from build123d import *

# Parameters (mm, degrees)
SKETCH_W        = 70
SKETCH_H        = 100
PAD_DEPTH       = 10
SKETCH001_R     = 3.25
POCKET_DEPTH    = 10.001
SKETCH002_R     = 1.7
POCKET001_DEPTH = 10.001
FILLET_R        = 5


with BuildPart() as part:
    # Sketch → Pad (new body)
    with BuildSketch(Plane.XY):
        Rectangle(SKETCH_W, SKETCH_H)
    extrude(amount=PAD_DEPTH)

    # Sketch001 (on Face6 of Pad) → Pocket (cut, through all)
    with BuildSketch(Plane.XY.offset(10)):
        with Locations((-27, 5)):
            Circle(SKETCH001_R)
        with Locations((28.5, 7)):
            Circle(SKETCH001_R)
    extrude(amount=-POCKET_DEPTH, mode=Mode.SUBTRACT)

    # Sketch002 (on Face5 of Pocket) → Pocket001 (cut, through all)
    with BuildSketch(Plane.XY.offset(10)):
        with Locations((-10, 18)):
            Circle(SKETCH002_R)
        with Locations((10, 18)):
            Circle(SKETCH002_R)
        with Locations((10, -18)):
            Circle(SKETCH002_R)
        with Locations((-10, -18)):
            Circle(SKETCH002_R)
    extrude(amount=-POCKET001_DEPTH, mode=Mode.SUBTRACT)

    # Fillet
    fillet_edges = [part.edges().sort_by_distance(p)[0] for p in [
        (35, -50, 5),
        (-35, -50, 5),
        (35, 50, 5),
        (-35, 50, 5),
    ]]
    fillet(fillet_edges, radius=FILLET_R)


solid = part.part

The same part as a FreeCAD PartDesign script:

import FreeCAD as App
import Part
import Sketcher
from FreeCAD import Vector
Q = App.Units.Quantity


def edges_at(feature, points):
    """Names of the edges that pass closest to the given points."""
    edges = feature.Shape.Edges
    near = lambda p: min(range(len(edges)), key=lambda i: edges[i].distToShape(Part.Vertex(*p))[0])
    return sorted({f"Edge{near(p) + 1}" for p in points})

doc = App.newDocument("Part")
body = doc.addObject("PartDesign::Body", "Body")

sketch1 = body.newObject("Sketcher::SketchObject", "Sketch")
sketch1.AttachmentSupport = (doc.getObject("XY_Plane"), [""])
sketch1.MapMode = "FlatFace"
sketch1.addGeometry([
    Part.LineSegment(Vector(-35, 50, 0), Vector(-35, -50, 0)),
    Part.LineSegment(Vector(-35, -50, 0), Vector(35, -50, 0)),
    Part.LineSegment(Vector(35, -50, 0), Vector(35, 50, 0)),
    Part.LineSegment(Vector(35, 50, 0), Vector(-35, 50, 0)),
], False)
sketch1.addConstraint([
    Sketcher.Constraint("Coincident", 0, 2, 1, 1),
    Sketcher.Constraint("Coincident", 1, 2, 2, 1),
    Sketcher.Constraint("Coincident", 2, 2, 3, 1),
    Sketcher.Constraint("Coincident", 3, 2, 0, 1),
    Sketcher.Constraint("Vertical", 0),
    Sketcher.Constraint("Horizontal", 1),
    Sketcher.Constraint("Vertical", 2),
    Sketcher.Constraint("Horizontal", 3),
    Sketcher.Constraint("Symmetric", 0, 2, 2, 2, -1, 1),
    Sketcher.Constraint("DistanceX", 1, 1, 1, 2, Q("70 mm")),
    Sketcher.Constraint("DistanceY", 0, 2, 0, 1, Q("100 mm")),
])
pad1 = body.newObject("PartDesign::Pad", "Pad")
pad1.Profile = sketch1
pad1.Length = 10

sketch2 = body.newObject("Sketcher::SketchObject", "Sketch001")
sketch2.AttachmentSupport = (doc.getObject("XY_Plane"), [""])
sketch2.MapMode = "FlatFace"
sketch2.AttachmentOffset = App.Placement(Vector(0, 0, 10), App.Rotation())
sketch2.addGeometry([
    Part.Circle(Vector(-27, 5, 0), Vector(0, 0, 1), 3.25),
    Part.Circle(Vector(28.5, 7, 0), Vector(0, 0, 1), 3.25),
], False)
sketch2.addConstraint([
    Sketcher.Constraint("Equal", 0, 1),
    Sketcher.Constraint("Diameter", 0, Q("6.5 mm")),
    Sketcher.Constraint("DistanceX", 0, 3, -1, 1, Q("27 mm")),
    Sketcher.Constraint("DistanceY", -1, 1, 0, 3, Q("5 mm")),
    Sketcher.Constraint("DistanceY", -1, 1, 1, 3, Q("7 mm")),
    Sketcher.Constraint("DistanceX", -1, 1, 1, 3, Q("28.5 mm")),
])
pocket1 = body.newObject("PartDesign::Pocket", "Pocket")
pocket1.Profile = sketch2
pocket1.Type = "ThroughAll"

sketch3 = body.newObject("Sketcher::SketchObject", "Sketch002")
sketch3.AttachmentSupport = (doc.getObject("XY_Plane"), [""])
sketch3.MapMode = "FlatFace"
sketch3.AttachmentOffset = App.Placement(Vector(0, 0, 10), App.Rotation())
sketch3.addGeometry([
    Part.Circle(Vector(-10, 18, 0), Vector(0, 0, 1), 1.7),
    Part.Circle(Vector(10, 18, 0), Vector(0, 0, 1), 1.7),
    Part.Circle(Vector(10, -18, 0), Vector(0, 0, 1), 1.7),
    Part.Circle(Vector(-10, -18, 0), Vector(0, 0, 1), 1.7),
], False)
sketch3.addConstraint([
    Sketcher.Constraint("Equal", 0, 1),
    Sketcher.Constraint("Equal", 1, 2),
    Sketcher.Constraint("Equal", 2, 3),
    Sketcher.Constraint("Symmetric", 0, 3, 2, 3, -1, 1),
    Sketcher.Constraint("Symmetric", 1, 3, 3, 3, -1, 1),
    Sketcher.Constraint("Symmetric", 0, 3, 1, 3, -2),
    Sketcher.Constraint("Diameter", 0, Q("3.4 mm")),
    Sketcher.Constraint("DistanceX", 0, 3, -1, 1, Q("10 mm")),
    Sketcher.Constraint("DistanceY", -1, 1, 0, 3, Q("18 mm")),
])
pocket2 = body.newObject("PartDesign::Pocket", "Pocket001")
pocket2.Profile = sketch3
pocket2.Type = "ThroughAll"
doc.recompute()

fillet = body.newObject("PartDesign::Fillet", "Fillet")
fillet.Base = (pocket2, edges_at(pocket2, [
    (35, -50, 5),
    (-35, -50, 5),
    (35, 50, 5),
    (-35, 50, 5),
]))
fillet.Radius = 5

doc.recompute()
